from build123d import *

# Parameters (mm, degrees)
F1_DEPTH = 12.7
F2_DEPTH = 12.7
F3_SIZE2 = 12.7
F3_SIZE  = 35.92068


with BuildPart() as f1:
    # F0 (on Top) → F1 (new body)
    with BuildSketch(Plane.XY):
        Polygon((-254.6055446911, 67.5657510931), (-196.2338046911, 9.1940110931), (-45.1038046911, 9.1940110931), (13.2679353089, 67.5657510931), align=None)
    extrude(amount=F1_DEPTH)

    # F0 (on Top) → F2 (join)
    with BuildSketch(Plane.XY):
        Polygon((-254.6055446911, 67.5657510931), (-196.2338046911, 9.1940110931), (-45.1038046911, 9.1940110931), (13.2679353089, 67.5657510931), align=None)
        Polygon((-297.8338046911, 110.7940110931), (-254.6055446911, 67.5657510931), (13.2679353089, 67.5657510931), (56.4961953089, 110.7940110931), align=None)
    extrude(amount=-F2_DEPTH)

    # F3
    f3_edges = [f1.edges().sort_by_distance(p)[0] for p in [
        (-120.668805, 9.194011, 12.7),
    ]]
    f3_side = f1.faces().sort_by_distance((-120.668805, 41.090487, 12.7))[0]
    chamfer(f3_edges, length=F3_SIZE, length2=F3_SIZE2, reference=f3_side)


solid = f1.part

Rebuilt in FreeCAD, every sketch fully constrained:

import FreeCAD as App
import Part
import Sketcher
from FreeCAD import Vector
Q = App.Units.Quantity


def edges_at(feature, points):
    """Names of the edges that pass closest to the given points."""
    edges = feature.Shape.Edges
    near = lambda p: min(range(len(edges)), key=lambda i: edges[i].distToShape(Part.Vertex(*p))[0])
    return sorted({f"Edge{near(p) + 1}" for p in points})


def add_polygon(sketch, points):
    """Adds a closed chain of lines whose ends are joined by coincident constraints."""
    first, n = sketch.GeometryCount, len(points)
    for a, b in zip(points, points[1:] + points[:1]):
        sketch.addGeometry(Part.LineSegment(App.Vector(*a, 0), App.Vector(*b, 0)), False)
    for i in range(n):
        sketch.addConstraint(Sketcher.Constraint("Coincident", first + i, 2, first + (i + 1) % n, 1))

doc = App.newDocument("Part")
params = doc.addObject("Spreadsheet::Sheet", "Params")
for row, (alias, value) in enumerate([
    ("sketch1_width", "5.95 in"),
    ("pad1_length", "0.5 in"),
    ("sketch2_width", "5.95 in"),
    ("pad2_length", "0.5 in"),
    ("chamfer_size", "1.4142 in"),
    ("chamfer_size2", "0.5 in"),
], start=1):
    params.set(f"A{row}", alias)
    params.set(f"B{row}", "=" + value)
    params.setAlias(f"B{row}", alias)

body = doc.addObject("PartDesign::Body", "Body")

sketch1 = body.newObject("Sketcher::SketchObject", "Sketch")
sketch1.AttachmentSupport = (doc.getObject("XY_Plane"), [""])
sketch1.MapMode = "FlatFace"
add_polygon(sketch1, [(-255, 68), (-196, 9), (-45, 9), (13, 68)])
sketch1.addConstraint([
    Sketcher.Constraint("Horizontal", 1),
    Sketcher.Constraint("Horizontal", 3),
    Sketcher.Constraint("Perpendicular", 0, 2),
    Sketcher.Constraint("Equal", 0, 2),
    Sketcher.Constraint("DistanceX", 1, 1, 1, 2, Q("5.95 in")),
    Sketcher.Constraint("DistanceX", 3, 2, 3, 1, Q("10.5462 in")),
    Sketcher.Constraint("DistanceY", -1, 1, 0, 2, 9.194011),
    Sketcher.Constraint("DistanceX", 0, 2, -1, 1, 196.233805),
])
sketch1.setExpression("Constraints[8]", "Params.sketch1_width")
pad1 = body.newObject("PartDesign::Pad", "Pad")
pad1.Profile = sketch1
pad1.setExpression("Length", "Params.pad1_length")

sketch2 = body.newObject("Sketcher::SketchObject", "Sketch001")
sketch2.AttachmentSupport = (doc.getObject("XY_Plane"), [""])
sketch2.MapMode = "FlatFace"
add_polygon(sketch2, [(-196, 9), (-45, 9), (56, 111), (-298, 111)])
sketch2.addConstraint([
    Sketcher.Constraint("Horizontal", 0),
    Sketcher.Constraint("Horizontal", 2),
    Sketcher.Constraint("Perpendicular", 1, 3),
    Sketcher.Constraint("Equal", 1, 3),
    Sketcher.Constraint("DistanceX", 0, 2, 1, 2, Q("4 in")),
    Sketcher.Constraint("DistanceX", 0, 1, 0, 2, Q("5.95 in")),
    Sketcher.Constraint("DistanceY", -1, 1, 0, 2, 9.194011),
    Sketcher.Constraint("DistanceX", 0, 2, -1, 1, 45.103805),
])
sketch2.setExpression("Constraints[9]", "Params.sketch2_width")
pad2 = body.newObject("PartDesign::Pad", "Pad001")
pad2.Profile = sketch2
pad2.setExpression("Length", "Params.pad2_length")
pad2.Reversed = True
doc.recompute()

chamfer = body.newObject("PartDesign::Chamfer", "Chamfer")
chamfer.Base = (pad2, edges_at(pad2, [(-120.669, 9.194, 12.7)]))
chamfer.ChamferType = "Two distances"
chamfer.setExpression("Size", "Params.chamfer_size")
chamfer.setExpression("Size2", "Params.chamfer_size2")

doc.recompute()
